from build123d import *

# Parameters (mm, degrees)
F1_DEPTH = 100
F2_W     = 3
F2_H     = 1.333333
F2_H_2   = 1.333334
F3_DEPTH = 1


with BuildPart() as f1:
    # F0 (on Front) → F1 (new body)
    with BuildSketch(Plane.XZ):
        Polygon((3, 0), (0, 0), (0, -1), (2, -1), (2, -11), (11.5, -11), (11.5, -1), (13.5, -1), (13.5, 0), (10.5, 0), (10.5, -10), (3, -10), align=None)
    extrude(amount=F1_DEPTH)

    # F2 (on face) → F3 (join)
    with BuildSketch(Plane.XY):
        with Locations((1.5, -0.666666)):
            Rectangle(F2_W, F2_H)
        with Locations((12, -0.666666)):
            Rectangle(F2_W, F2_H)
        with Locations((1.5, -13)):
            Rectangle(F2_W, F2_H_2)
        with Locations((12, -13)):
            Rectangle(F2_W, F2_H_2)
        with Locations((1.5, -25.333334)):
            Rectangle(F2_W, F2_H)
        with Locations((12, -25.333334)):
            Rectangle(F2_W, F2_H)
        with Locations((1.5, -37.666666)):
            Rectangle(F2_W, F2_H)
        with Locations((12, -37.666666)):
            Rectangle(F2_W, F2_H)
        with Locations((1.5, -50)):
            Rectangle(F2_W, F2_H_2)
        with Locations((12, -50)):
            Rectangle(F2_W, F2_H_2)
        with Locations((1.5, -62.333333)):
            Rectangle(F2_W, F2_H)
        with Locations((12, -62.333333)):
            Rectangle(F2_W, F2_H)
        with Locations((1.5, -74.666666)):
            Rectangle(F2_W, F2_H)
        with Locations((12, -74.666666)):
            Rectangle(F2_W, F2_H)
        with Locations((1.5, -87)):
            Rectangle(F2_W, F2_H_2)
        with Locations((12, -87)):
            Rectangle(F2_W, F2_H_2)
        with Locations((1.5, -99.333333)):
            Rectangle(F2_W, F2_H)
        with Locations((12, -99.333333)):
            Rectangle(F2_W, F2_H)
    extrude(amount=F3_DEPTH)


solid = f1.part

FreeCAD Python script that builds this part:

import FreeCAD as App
import Part
import Sketcher

V = App.Vector
Q = App.Units.Quantity


def add_polygon(sketch, points):
    """Adds a closed chain of lines whose ends are joined by coincident constraints."""
    first, n = sketch.GeometryCount, len(points)
    for a, b in zip(points, points[1:] + points[:1]):
        sketch.addGeometry(Part.LineSegment(App.Vector(*a, 0), App.Vector(*b, 0)), False)
    for i in range(n):
        sketch.addConstraint(Sketcher.Constraint("Coincident", first + i, 2, first + (i + 1) % n, 1))

doc = App.newDocument("Part")
body = doc.addObject("PartDesign::Body", "Body")

# Sketch on XZ plane
sketch1 = body.newObject("Sketcher::SketchObject", "Sketch")
sketch1.AttachmentSupport = (doc.getObject("XZ_Plane"), [""])
sketch1.MapMode = "FlatFace"
add_polygon(sketch1, [(3, 0), (0, 0), (0, -1), (2, -1), (2, -11), (11.5, -11), (11.5, -1), (13.5, -1), (13.5, 0), (10.5, 0), (10.5, -10), (3, -10)])  # lines 0-11
sketch1.addConstraint([
    Sketcher.Constraint("Horizontal", 0),
    Sketcher.Constraint("Vertical", 1),
    Sketcher.Constraint("Horizontal", 2),
    Sketcher.Constraint("Vertical", 3),
    Sketcher.Constraint("Horizontal", 4),
    Sketcher.Constraint("Vertical", 5),
    Sketcher.Constraint("Horizontal", 6),
    Sketcher.Constraint("Vertical", 7),
    Sketcher.Constraint("Horizontal", 8),
    Sketcher.Constraint("Vertical", 9),
    Sketcher.Constraint("Horizontal", 10),
    Sketcher.Constraint("Vertical", 11),
    Sketcher.Constraint("Coincident", 0, 2, -1, 1),
    Sketcher.Constraint("PointOnObject", 7, 2, -1),
    Sketcher.Constraint("Horizontal", 2, 2, 5, 2),
    Sketcher.Constraint("Equal", 2, 6),
    Sketcher.Constraint("Equal", 0, 8),
    Sketcher.Constraint("Equal", 5, 9),
    Sketcher.Constraint("DistanceX", 0, 2, 0, 1, Q("3 mm")),
    Sketcher.Constraint("DistanceX", 2, 1, 2, 2, Q("2 mm")),
    Sketcher.Constraint("DistanceY", 1, 2, 1, 1, Q("1 mm")),
    Sketcher.Constraint("DistanceY", 3, 2, 3, 1, Q("10 mm")),
    Sketcher.Constraint("DistanceX", 4, 1, 4, 2, Q("9.5 mm")),
])
pad1 = body.newObject("PartDesign::Pad", "Pad")
pad1.Profile = sketch1
pad1.Length = 100

# Sketch on XY plane
sketch2 = body.newObject("Sketcher::SketchObject", "Sketch001")
sketch2.AttachmentSupport = (doc.getObject("XY_Plane"), [""])
sketch2.MapMode = "FlatFace"
add_polygon(sketch2, [(0, 0), (0, -1.3), (3, -1.3), (3, 0)])  # lines 0-3
add_polygon(sketch2, [(10.5, 0), (10.5, -1.3), (13.5, -1.3), (13.5, 0)])  # lines 4-7
add_polygon(sketch2, [(0, -12.3), (0, -13.7), (3, -13.7), (3, -12.3)])  # lines 8-11
add_polygon(sketch2, [(10.5, -12.3), (10.5, -13.7), (13.5, -13.7), (13.5, -12.3)])  # lines 12-15
add_polygon(sketch2, [(0, -24.7), (0, -26), (3, -26), (3, -24.7)])  # lines 16-19
add_polygon(sketch2, [(10.5, -24.7), (10.5, -26), (13.5, -26), (13.5, -24.7)])  # lines 20-23
add_polygon(sketch2, [(0, -37), (0, -38.3), (3, -38.3), (3, -37)])  # lines 24-27
add_polygon(sketch2, [(10.5, -37), (10.5, -38.3), (13.5, -38.3), (13.5, -37)])  # lines 28-31
add_polygon(sketch2, [(0, -49.3), (0, -50.7), (3, -50.7), (3, -49.3)])  # lines 32-35
add_polygon(sketch2, [(10.5, -49.3), (10.5, -50.7), (13.5, -50.7), (13.5, -49.3)])  # lines 36-39
add_polygon(sketch2, [(0, -61.7), (0, -63), (3, -63), (3, -61.7)])  # lines 40-43
add_polygon(sketch2, [(10.5, -61.7), (10.5, -63), (13.5, -63), (13.5, -61.7)])  # lines 44-47
add_polygon(sketch2, [(0, -74), (0, -75.3), (3, -75.3), (3, -74)])  # lines 48-51
add_polygon(sketch2, [(10.5, -74), (10.5, -75.3), (13.5, -75.3), (13.5, -74)])  # lines 52-55
add_polygon(sketch2, [(0, -86.3), (0, -87.7), (3, -87.7), (3, -86.3)])  # lines 56-59
add_polygon(sketch2, [(10.5, -86.3), (10.5, -87.7), (13.5, -87.7), (13.5, -86.3)])  # lines 60-63
add_polygon(sketch2, [(0, -98.7), (0, -100), (3, -100), (3, -98.7)])  # lines 64-67
add_polygon(sketch2, [(10.5, -98.7), (10.5, -100), (13.5, -100), (13.5, -98.7)])  # lines 68-71
sketch2.addConstraint([
    Sketcher.Constraint("Vertical", 0),
    Sketcher.Constraint("Horizontal", 1),
    Sketcher.Constraint("Vertical", 2),
    Sketcher.Constraint("Horizontal", 3),
    Sketcher.Constraint("Vertical", 4),
    Sketcher.Constraint("Horizontal", 5),
    Sketcher.Constraint("Vertical", 6),
    Sketcher.Constraint("Horizontal", 7),
    Sketcher.Constraint("Vertical", 8),
    Sketcher.Constraint("Horizontal", 9),
    Sketcher.Constraint("Vertical", 10),
    Sketcher.Constraint("Horizontal", 11),
    Sketcher.Constraint("Vertical", 12),
    Sketcher.Constraint("Horizontal", 13),
    Sketcher.Constraint("Vertical", 14),
    Sketcher.Constraint("Horizontal", 15),
    Sketcher.Constraint("Vertical", 16),
    Sketcher.Constraint("Horizontal", 17),
    Sketcher.Constraint("Vertical", 18),
    Sketcher.Constraint("Horizontal", 19),
    Sketcher.Constraint("Vertical", 20),
    Sketcher.Constraint("Horizontal", 21),
    Sketcher.Constraint("Vertical", 22),
    Sketcher.Constraint("Horizontal", 23),
    Sketcher.Constraint("Vertical", 24),
    Sketcher.Constraint("Horizontal", 25),
    Sketcher.Constraint("Vertical", 26),
    Sketcher.Constraint("Horizontal", 27),
    Sketcher.Constraint("Vertical", 28),
    Sketcher.Constraint("Horizontal", 29),
    Sketcher.Constraint("Vertical", 30),
    Sketcher.Constraint("Horizontal", 31),
    Sketcher.Constraint("Vertical", 32),
    Sketcher.Constraint("Horizontal", 33),
    Sketcher.Constraint("Vertical", 34),
    Sketcher.Constraint("Horizontal", 35),
    Sketcher.Constraint("Vertical", 36),
    Sketcher.Constraint("Horizontal", 37),
    Sketcher.Constraint("Vertical", 38),
    Sketcher.Constraint("Horizontal", 39),
    Sketcher.Constraint("Vertical", 40),
    Sketcher.Constraint("Horizontal", 41),
    Sketcher.Constraint("Vertical", 42),
    Sketcher.Constraint("Horizontal", 43),
    Sketcher.Constraint("Vertical", 44),
    Sketcher.Constraint("Horizontal", 45),
    Sketcher.Constraint("Vertical", 46),
    Sketcher.Constraint("Horizontal", 47),
    Sketcher.Constraint("Vertical", 48),
    Sketcher.Constraint("Horizontal", 49),
    Sketcher.Constraint("Vertical", 50),
    Sketcher.Constraint("Horizontal", 51),
    Sketcher.Constraint("Vertical", 52),
    Sketcher.Constraint("Horizontal", 53),
    Sketcher.Constraint("Vertical", 54),
    Sketcher.Constraint("Horizontal", 55),
    Sketcher.Constraint("Vertical", 56),
    Sketcher.Constraint("Horizontal", 57),
    Sketcher.Constraint("Vertical", 58),
    Sketcher.Constraint("Horizontal", 59),
    Sketcher.Constraint("Vertical", 60),
    Sketcher.Constraint("Horizontal", 61),
    Sketcher.Constraint("Vertical", 62),
    Sketcher.Constraint("Horizontal", 63),
    Sketcher.Constraint("Vertical", 64),
    Sketcher.Constraint("Horizontal", 65),
    Sketcher.Constraint("Vertical", 66),
    Sketcher.Constraint("Horizontal", 67),
    Sketcher.Constraint("Vertical", 68),
    Sketcher.Constraint("Horizontal", 69),
    Sketcher.Constraint("Vertical", 70),
    Sketcher.Constraint("Horizontal", 71),
    Sketcher.Constraint("Coincident", 3, 2, -1, 1),
    Sketcher.Constraint("PointOnObject", 6, 2, -1),
    Sketcher.Constraint("PointOnObject", 8, 2, -2),
    Sketcher.Constraint("PointOnObject", 16, 2, -2),
    Sketcher.Constraint("PointOnObject", 24, 2, -2),
    Sketcher.Constraint("PointOnObject", 32, 2, -2),
    Sketcher.Constraint("PointOnObject", 40, 2, -2),
    Sketcher.Constraint("PointOnObject", 48, 2, -2),
    Sketcher.Constraint("PointOnObject", 56, 2, -2),
    Sketcher.Constraint("PointOnObject", 64, 2, -2),
    Sketcher.Constraint("Horizontal", 1, 2, 4, 2),
    Sketcher.Constraint("Horizontal", 9, 2, 12, 2),
    Sketcher.Constraint("Horizontal", 11, 2, 14, 2),
    Sketcher.Constraint("Horizontal", 17, 2, 20, 2),
    Sketcher.Constraint("Horizontal", 19, 2, 22, 2),
    Sketcher.Constraint("Horizontal", 25, 2, 28, 2),
    Sketcher.Constraint("Horizontal", 27, 2, 30, 2),
    Sketcher.Constraint("Horizontal", 33, 2, 36, 2),
    Sketcher.Constraint("Horizontal", 35, 2, 38, 2),
    Sketcher.Constraint("Horizontal", 41, 2, 44, 2),
    Sketcher.Constraint("Horizontal", 43, 2, 46, 2),
    Sketcher.Constraint("Horizontal", 49, 2, 52, 2),
    Sketcher.Constraint("Horizontal", 51, 2, 54, 2),
    Sketcher.Constraint("Horizontal", 57, 2, 60, 2),
    Sketcher.Constraint("Horizontal", 59, 2, 62, 2),
    Sketcher.Constraint("Horizontal", 65, 2, 68, 2),
    Sketcher.Constraint("Horizontal", 67, 2, 70, 2),
    Sketcher.Constraint("Vertical", 2, 2, 9, 2),
    Sketcher.Constraint("Vertical", 7, 2, 12, 2),
    Sketcher.Constraint("Vertical", 6, 2, 13, 2),
    Sketcher.Constraint("Vertical", 10, 2, 17, 2),
    Sketcher.Constraint("Vertical", 15, 2, 20, 2),
    Sketcher.Constraint("Vertical", 14, 2, 21, 2),
    Sketcher.Constraint("Vertical", 18, 2, 25, 2),
    Sketcher.Constraint("Vertical", 23, 2, 28, 2),
    Sketcher.Constraint("Vertical", 22, 2, 29, 2),
    Sketcher.Constraint("Vertical", 26, 2, 33, 2),
    Sketcher.Constraint("Vertical", 31, 2, 36, 2),
    Sketcher.Constraint("Vertical", 30, 2, 37, 2),
    Sketcher.Constraint("Vertical", 34, 2, 41, 2),
    Sketcher.Constraint("Vertical", 39, 2, 44, 2),
    Sketcher.Constraint("Vertical", 38, 2, 45, 2),
    Sketcher.Constraint("Vertical", 42, 2, 49, 2),
    Sketcher.Constraint("Vertical", 47, 2, 52, 2),
    Sketcher.Constraint("Vertical", 46, 2, 53, 2),
    Sketcher.Constraint("Vertical", 50, 2, 57, 2),
    Sketcher.Constraint("Vertical", 55, 2, 60, 2),
    Sketcher.Constraint("Vertical", 54, 2, 61, 2),
    Sketcher.Constraint("Vertical", 58, 2, 65, 2),
    Sketcher.Constraint("Vertical", 63, 2, 68, 2),
    Sketcher.Constraint("Vertical", 62, 2, 69, 2),
    Sketcher.Constraint("Equal", 3, 5),
    Sketcher.Constraint("Equal", 6, 8),
    Sketcher.Constraint("Equal", 14, 16),
    Sketcher.Constraint("Equal", 22, 24),
    Sketcher.Constraint("Equal", 30, 32),
    Sketcher.Constraint("Equal", 38, 40),
    Sketcher.Constraint("Equal", 46, 48),
    Sketcher.Constraint("Equal", 54, 56),
    Sketcher.Constraint("Equal", 62, 64),
    Sketcher.Constraint("DistanceX", 1, 1, 1, 2, Q("3 mm")),
    Sketcher.Constraint("DistanceY", 16, 2, -1, 1, Q("26 mm")),
    Sketcher.Constraint("DistanceY", 26, 2, -1, 1, Q("37 mm")),
    Sketcher.Constraint("DistanceY", 40, 2, -1, 1, Q("63 mm")),
    Sketcher.Constraint("DistanceY", 50, 2, -1, 1, Q("74 mm")),
    Sketcher.Constraint("DistanceY", 64, 2, -1, 1, Q("100 mm")),
    Sketcher.Constraint("DistanceX", -1, 1, 4, 2, Q("10.5 mm")),
    Sketcher.Constraint("DistanceY", 0, 2, 0, 1, Q("1.333333 mm")),
    Sketcher.Constraint("DistanceY", 8, 2, -1, 1, Q("13.666667 mm")),
    Sketcher.Constraint("DistanceY", 32, 2, -1, 1, Q("50.666667 mm")),
    Sketcher.Constraint("DistanceY", 56, 2, -1, 1, Q("87.666667 mm")),
])
pad2 = body.newObject("PartDesign::Pad", "Pad001")
pad2.Profile = sketch2
pad2.Length = 1

doc.recompute()
